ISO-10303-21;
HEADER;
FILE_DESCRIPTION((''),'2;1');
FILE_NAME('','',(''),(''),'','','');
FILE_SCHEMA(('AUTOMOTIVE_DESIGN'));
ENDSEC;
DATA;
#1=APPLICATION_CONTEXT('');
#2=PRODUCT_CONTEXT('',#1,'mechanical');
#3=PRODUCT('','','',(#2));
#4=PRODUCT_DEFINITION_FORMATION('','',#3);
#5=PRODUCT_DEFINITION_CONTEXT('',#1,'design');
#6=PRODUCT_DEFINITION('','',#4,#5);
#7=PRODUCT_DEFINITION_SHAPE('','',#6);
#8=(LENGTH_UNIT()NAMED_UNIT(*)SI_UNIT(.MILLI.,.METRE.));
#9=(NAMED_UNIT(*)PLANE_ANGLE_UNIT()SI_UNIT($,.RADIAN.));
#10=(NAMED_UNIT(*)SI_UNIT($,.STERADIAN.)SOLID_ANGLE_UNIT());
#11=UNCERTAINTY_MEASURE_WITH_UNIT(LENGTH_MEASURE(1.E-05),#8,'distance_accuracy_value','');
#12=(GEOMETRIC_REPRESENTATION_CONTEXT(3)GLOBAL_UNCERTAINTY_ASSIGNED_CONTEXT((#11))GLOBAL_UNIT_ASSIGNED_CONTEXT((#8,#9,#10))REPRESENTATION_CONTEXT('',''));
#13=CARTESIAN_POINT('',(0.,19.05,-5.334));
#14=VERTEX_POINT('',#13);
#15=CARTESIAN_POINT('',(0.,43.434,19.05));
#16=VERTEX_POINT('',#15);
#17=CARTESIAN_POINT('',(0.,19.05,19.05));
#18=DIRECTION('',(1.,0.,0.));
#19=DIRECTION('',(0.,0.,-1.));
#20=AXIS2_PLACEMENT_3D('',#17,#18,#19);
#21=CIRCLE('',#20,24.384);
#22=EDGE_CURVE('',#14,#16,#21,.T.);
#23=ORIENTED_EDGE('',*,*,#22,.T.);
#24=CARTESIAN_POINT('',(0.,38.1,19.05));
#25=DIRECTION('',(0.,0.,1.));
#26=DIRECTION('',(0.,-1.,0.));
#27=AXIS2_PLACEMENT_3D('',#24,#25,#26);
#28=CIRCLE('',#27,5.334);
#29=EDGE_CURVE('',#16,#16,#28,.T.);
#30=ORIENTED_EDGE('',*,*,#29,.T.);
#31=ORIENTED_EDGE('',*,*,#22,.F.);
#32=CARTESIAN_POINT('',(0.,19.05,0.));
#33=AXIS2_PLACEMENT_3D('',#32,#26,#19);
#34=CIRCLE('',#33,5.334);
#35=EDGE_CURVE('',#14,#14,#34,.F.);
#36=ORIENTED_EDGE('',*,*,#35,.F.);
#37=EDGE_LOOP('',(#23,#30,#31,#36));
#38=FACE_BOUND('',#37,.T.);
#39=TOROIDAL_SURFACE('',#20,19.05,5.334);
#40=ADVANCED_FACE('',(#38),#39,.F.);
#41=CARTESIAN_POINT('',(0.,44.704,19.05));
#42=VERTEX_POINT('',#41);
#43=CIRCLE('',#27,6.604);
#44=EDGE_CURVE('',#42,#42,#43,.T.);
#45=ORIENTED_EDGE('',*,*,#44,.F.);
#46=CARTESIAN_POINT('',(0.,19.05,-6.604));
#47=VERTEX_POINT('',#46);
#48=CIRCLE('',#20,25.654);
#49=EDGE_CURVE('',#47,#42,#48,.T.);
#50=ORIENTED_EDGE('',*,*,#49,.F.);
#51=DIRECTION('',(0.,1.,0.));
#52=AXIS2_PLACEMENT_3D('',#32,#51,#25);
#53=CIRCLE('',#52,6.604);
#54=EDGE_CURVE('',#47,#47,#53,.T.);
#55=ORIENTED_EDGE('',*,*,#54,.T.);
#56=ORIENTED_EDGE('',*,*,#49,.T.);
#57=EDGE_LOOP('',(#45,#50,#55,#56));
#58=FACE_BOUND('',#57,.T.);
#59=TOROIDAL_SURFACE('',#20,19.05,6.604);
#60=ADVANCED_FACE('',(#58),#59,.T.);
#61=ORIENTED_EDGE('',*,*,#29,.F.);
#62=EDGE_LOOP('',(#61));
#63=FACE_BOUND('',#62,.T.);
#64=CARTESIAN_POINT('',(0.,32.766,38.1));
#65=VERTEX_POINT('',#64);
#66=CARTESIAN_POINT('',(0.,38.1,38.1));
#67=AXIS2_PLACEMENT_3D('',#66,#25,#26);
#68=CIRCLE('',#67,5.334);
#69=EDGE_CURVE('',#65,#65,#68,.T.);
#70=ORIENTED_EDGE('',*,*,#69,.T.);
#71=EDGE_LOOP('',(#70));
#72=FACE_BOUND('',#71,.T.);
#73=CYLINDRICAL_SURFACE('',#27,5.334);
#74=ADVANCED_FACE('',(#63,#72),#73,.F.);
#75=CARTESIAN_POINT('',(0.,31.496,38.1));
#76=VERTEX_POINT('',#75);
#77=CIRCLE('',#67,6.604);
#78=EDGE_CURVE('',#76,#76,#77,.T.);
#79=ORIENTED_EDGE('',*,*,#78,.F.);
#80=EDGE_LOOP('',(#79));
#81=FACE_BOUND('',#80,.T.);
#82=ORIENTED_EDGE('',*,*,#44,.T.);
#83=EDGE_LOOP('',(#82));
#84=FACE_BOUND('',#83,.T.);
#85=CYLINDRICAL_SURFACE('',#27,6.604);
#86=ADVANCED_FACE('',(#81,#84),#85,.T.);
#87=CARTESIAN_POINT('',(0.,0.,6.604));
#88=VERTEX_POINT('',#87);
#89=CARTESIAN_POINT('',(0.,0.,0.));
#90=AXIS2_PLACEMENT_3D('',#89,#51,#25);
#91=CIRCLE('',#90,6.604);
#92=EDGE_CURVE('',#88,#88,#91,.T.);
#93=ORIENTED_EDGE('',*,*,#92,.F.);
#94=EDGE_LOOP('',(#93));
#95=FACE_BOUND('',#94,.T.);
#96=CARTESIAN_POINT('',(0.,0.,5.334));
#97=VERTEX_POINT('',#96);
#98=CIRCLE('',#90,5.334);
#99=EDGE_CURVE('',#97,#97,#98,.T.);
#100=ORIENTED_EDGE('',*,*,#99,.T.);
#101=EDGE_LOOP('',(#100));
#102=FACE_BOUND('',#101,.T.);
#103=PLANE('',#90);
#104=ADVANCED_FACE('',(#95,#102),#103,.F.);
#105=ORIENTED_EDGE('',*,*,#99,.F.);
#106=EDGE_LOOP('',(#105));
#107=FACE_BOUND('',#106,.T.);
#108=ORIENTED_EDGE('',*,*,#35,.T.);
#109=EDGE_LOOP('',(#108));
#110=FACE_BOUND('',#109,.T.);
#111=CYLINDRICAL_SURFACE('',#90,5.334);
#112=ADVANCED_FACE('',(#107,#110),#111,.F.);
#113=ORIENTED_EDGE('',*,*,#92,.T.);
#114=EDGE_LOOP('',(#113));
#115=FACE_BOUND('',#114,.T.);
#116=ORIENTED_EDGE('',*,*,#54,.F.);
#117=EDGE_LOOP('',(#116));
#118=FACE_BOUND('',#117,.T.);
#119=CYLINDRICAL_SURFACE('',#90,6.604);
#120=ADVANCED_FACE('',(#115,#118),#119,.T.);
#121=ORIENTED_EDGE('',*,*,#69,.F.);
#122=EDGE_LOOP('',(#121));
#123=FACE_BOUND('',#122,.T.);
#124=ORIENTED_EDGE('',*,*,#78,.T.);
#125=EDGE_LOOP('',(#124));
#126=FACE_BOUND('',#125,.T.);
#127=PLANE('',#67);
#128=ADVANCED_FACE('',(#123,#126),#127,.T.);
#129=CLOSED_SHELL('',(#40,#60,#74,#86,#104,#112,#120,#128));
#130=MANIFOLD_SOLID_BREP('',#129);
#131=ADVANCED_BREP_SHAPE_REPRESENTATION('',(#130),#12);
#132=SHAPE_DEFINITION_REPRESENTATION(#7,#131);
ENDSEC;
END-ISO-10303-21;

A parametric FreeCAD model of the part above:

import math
import FreeCAD as App
import Part
import Sketcher

V = App.Vector
Q = App.Units.Quantity

doc = App.newDocument("Part")
body = doc.addObject("PartDesign::Body", "Body")

# Sketch on XZ plane
sketch1 = doc.addObject("Sketcher::SketchObject", "Sketch")
body.addObject(sketch1)
sketch1.AttachmentSupport = (doc.XZ_Plane, [""])
sketch1.MapMode = "FlatFace"
sketch1.addGeometry(Part.Circle(V(0, 0, 0), V(0, 0, 1), 6.604), False)
sketch1.addGeometry(Part.Circle(V(0, 0, 0), V(0, 0, 1), 5.334), False)
sketch1.addConstraint(Sketcher.Constraint("Coincident", 0, 3, -1, 1))
sketch1.addConstraint(Sketcher.Constraint("Coincident", 1, 3, -1, 1))
sketch1.addConstraint(Sketcher.Constraint("Diameter", 0, Q("0.52 in")))
sketch1.addConstraint(Sketcher.Constraint("Diameter", 1, Q("0.42 in")))

# Sketch on YZ plane
sketch2 = doc.addObject("Sketcher::SketchObject", "Sketch001")
body.addObject(sketch2)
sketch2.AttachmentSupport = (doc.YZ_Plane, [""])
sketch2.MapMode = "FlatFace"
sketch2.addGeometry(Part.LineSegment(V(0, 0, 0), V(19.05, 0, 0)), False)
sketch2.addGeometry(Part.ArcOfCircle(Part.Circle(V(19.05, 19.05, 0), V(0, 0, 1), 19.05), math.radians(-90), math.radians(0)), False)
sketch2.addGeometry(Part.LineSegment(V(38.1, 19.05, 0), V(38.1, 38.1, 0)), False)
sketch2.addConstraint(Sketcher.Constraint("Tangent", 0, 2, 1, 1))
sketch2.addConstraint(Sketcher.Constraint("Tangent", 1, 2, 2, 1))
sketch2.addConstraint(Sketcher.Constraint("Horizontal", 0))
sketch2.addConstraint(Sketcher.Constraint("Vertical", 2))
sketch2.addConstraint(Sketcher.Constraint("Coincident", 0, 1, -1, 1))
sketch2.addConstraint(Sketcher.Constraint("Equal", 0, 2))
sketch2.addConstraint(Sketcher.Constraint("Radius", 1, Q("0.75 in")))
sketch2.addConstraint(Sketcher.Constraint("DistanceX", 0, 1, 0, 2, Q("0.75 in")))
doc.recompute()

additivepipe = doc.addObject("PartDesign::AdditivePipe", "AdditivePipe")
body.addObject(additivepipe)
additivepipe.Profile = sketch1
additivepipe.Spine = (sketch2, ["Edge1", "Edge2", "Edge3"])

doc.recompute()
